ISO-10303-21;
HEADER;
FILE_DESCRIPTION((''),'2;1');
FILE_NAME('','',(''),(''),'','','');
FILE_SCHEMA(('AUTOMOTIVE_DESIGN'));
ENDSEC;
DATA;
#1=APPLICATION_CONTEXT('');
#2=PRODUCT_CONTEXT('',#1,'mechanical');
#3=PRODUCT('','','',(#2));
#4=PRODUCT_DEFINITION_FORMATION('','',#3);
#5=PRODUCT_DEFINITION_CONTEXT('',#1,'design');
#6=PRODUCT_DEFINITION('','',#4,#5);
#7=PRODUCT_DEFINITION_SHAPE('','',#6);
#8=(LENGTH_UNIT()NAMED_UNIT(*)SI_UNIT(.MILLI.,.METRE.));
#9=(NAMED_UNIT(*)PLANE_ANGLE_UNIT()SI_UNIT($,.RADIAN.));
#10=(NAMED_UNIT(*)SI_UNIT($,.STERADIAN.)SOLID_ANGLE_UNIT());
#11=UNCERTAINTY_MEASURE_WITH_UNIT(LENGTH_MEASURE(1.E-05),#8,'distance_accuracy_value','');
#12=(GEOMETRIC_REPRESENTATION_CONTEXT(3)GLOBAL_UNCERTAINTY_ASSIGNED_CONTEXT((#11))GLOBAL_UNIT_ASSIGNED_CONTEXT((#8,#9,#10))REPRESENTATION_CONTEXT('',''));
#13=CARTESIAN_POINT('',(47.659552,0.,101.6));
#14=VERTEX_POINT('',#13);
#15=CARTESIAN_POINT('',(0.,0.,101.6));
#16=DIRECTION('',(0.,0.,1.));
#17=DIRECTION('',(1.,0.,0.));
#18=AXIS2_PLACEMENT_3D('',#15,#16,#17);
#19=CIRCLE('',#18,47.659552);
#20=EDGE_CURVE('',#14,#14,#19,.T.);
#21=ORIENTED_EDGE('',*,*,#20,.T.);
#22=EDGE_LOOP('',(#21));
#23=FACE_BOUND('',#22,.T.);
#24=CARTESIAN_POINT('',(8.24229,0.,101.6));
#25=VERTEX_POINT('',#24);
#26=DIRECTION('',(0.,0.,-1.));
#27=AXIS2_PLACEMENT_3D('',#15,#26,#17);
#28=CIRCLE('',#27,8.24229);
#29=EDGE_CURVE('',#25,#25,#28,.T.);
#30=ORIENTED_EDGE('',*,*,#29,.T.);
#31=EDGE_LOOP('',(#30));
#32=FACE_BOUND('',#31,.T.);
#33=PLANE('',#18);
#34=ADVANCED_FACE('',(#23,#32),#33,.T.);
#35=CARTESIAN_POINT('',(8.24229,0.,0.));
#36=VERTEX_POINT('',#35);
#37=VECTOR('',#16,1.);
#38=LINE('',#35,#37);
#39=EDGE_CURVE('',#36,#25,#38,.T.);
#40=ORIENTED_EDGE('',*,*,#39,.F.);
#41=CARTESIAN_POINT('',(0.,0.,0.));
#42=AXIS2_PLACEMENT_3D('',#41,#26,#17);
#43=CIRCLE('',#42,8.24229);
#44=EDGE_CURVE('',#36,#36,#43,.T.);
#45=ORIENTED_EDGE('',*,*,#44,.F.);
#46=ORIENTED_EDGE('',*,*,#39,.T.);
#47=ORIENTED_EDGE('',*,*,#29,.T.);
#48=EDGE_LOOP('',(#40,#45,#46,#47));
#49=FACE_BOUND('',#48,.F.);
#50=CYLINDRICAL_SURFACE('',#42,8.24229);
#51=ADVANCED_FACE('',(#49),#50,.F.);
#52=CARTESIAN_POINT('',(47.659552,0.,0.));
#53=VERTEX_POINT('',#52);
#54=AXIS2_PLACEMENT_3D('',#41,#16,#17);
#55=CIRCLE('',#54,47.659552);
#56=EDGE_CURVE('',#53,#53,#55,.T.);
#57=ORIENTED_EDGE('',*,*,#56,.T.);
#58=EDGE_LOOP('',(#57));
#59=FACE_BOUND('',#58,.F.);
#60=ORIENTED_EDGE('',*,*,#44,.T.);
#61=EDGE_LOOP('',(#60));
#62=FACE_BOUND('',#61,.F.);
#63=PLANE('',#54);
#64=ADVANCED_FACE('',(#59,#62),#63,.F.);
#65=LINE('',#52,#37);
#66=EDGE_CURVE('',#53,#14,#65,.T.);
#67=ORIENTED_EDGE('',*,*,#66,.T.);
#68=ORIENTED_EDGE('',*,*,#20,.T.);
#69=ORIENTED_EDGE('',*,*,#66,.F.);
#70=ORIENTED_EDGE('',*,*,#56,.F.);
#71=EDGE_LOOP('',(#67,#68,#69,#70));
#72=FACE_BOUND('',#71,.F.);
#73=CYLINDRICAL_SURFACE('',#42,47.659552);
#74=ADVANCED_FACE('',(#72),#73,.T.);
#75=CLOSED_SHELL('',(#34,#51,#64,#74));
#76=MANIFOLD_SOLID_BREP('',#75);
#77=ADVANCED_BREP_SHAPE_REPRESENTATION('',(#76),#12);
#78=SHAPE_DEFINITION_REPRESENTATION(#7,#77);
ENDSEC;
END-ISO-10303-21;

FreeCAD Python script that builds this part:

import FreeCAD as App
import Part
import Sketcher
Q = App.Units.Quantity

doc = App.newDocument("Part")
body = doc.addObject("PartDesign::Body", "Body")

# Sketch on XY plane
sketch1 = body.newObject("Sketcher::SketchObject", "Sketch")
sketch1.AttachmentSupport = (doc.getObject("XY_Plane"), [""])
sketch1.MapMode = "FlatFace"
sketch1.addGeometry(Part.Circle(App.Vector(0, 0, 0), App.Vector(0, 0, 1), 47.659552), False)
sketch1.addConstraint([
    Sketcher.Constraint("Coincident", 0, 3, -1, 1),
    Sketcher.Constraint("Diameter", 0, 95.319104),
])
pad1 = body.newObject("PartDesign::Pad", "Pad")
pad1.Profile = sketch1
pad1.Length = Q("4 in")

# Sketch on XY plane
sketch2 = body.newObject("Sketcher::SketchObject", "Sketch001")
sketch2.AttachmentSupport = (doc.getObject("XY_Plane"), [""])
sketch2.MapMode = "FlatFace"
sketch2.addGeometry(Part.Circle(App.Vector(0, 0, 0), App.Vector(0, 0, 1), 13.037105), False)
sketch2.addConstraint([
    Sketcher.Constraint("Coincident", 0, 3, -1, 1),
    Sketcher.Constraint("Diameter", 0, 26.07421),
])
pad2 = body.newObject("PartDesign::Pad", "Pad001")
pad2.Profile = sketch2
pad2.Length = Q("4 in")

# Sketch on XY plane
sketch3 = body.newObject("Sketcher::SketchObject", "Sketch002")
sketch3.AttachmentSupport = (doc.getObject("XY_Plane"), [""])
sketch3.MapMode = "FlatFace"
sketch3.addGeometry(Part.Circle(App.Vector(0, 0, 0), App.Vector(0, 0, 1), 8.24229), False)
sketch3.addConstraint([
    Sketcher.Constraint("Coincident", 0, 3, -1, 1),
    Sketcher.Constraint("Diameter", 0, 16.48458),
])
pocket1 = body.newObject("PartDesign::Pocket", "Pocket")
pocket1.Profile = sketch3
pocket1.Length = Q("4 in")
pocket1.Reversed = True

doc.recompute()
